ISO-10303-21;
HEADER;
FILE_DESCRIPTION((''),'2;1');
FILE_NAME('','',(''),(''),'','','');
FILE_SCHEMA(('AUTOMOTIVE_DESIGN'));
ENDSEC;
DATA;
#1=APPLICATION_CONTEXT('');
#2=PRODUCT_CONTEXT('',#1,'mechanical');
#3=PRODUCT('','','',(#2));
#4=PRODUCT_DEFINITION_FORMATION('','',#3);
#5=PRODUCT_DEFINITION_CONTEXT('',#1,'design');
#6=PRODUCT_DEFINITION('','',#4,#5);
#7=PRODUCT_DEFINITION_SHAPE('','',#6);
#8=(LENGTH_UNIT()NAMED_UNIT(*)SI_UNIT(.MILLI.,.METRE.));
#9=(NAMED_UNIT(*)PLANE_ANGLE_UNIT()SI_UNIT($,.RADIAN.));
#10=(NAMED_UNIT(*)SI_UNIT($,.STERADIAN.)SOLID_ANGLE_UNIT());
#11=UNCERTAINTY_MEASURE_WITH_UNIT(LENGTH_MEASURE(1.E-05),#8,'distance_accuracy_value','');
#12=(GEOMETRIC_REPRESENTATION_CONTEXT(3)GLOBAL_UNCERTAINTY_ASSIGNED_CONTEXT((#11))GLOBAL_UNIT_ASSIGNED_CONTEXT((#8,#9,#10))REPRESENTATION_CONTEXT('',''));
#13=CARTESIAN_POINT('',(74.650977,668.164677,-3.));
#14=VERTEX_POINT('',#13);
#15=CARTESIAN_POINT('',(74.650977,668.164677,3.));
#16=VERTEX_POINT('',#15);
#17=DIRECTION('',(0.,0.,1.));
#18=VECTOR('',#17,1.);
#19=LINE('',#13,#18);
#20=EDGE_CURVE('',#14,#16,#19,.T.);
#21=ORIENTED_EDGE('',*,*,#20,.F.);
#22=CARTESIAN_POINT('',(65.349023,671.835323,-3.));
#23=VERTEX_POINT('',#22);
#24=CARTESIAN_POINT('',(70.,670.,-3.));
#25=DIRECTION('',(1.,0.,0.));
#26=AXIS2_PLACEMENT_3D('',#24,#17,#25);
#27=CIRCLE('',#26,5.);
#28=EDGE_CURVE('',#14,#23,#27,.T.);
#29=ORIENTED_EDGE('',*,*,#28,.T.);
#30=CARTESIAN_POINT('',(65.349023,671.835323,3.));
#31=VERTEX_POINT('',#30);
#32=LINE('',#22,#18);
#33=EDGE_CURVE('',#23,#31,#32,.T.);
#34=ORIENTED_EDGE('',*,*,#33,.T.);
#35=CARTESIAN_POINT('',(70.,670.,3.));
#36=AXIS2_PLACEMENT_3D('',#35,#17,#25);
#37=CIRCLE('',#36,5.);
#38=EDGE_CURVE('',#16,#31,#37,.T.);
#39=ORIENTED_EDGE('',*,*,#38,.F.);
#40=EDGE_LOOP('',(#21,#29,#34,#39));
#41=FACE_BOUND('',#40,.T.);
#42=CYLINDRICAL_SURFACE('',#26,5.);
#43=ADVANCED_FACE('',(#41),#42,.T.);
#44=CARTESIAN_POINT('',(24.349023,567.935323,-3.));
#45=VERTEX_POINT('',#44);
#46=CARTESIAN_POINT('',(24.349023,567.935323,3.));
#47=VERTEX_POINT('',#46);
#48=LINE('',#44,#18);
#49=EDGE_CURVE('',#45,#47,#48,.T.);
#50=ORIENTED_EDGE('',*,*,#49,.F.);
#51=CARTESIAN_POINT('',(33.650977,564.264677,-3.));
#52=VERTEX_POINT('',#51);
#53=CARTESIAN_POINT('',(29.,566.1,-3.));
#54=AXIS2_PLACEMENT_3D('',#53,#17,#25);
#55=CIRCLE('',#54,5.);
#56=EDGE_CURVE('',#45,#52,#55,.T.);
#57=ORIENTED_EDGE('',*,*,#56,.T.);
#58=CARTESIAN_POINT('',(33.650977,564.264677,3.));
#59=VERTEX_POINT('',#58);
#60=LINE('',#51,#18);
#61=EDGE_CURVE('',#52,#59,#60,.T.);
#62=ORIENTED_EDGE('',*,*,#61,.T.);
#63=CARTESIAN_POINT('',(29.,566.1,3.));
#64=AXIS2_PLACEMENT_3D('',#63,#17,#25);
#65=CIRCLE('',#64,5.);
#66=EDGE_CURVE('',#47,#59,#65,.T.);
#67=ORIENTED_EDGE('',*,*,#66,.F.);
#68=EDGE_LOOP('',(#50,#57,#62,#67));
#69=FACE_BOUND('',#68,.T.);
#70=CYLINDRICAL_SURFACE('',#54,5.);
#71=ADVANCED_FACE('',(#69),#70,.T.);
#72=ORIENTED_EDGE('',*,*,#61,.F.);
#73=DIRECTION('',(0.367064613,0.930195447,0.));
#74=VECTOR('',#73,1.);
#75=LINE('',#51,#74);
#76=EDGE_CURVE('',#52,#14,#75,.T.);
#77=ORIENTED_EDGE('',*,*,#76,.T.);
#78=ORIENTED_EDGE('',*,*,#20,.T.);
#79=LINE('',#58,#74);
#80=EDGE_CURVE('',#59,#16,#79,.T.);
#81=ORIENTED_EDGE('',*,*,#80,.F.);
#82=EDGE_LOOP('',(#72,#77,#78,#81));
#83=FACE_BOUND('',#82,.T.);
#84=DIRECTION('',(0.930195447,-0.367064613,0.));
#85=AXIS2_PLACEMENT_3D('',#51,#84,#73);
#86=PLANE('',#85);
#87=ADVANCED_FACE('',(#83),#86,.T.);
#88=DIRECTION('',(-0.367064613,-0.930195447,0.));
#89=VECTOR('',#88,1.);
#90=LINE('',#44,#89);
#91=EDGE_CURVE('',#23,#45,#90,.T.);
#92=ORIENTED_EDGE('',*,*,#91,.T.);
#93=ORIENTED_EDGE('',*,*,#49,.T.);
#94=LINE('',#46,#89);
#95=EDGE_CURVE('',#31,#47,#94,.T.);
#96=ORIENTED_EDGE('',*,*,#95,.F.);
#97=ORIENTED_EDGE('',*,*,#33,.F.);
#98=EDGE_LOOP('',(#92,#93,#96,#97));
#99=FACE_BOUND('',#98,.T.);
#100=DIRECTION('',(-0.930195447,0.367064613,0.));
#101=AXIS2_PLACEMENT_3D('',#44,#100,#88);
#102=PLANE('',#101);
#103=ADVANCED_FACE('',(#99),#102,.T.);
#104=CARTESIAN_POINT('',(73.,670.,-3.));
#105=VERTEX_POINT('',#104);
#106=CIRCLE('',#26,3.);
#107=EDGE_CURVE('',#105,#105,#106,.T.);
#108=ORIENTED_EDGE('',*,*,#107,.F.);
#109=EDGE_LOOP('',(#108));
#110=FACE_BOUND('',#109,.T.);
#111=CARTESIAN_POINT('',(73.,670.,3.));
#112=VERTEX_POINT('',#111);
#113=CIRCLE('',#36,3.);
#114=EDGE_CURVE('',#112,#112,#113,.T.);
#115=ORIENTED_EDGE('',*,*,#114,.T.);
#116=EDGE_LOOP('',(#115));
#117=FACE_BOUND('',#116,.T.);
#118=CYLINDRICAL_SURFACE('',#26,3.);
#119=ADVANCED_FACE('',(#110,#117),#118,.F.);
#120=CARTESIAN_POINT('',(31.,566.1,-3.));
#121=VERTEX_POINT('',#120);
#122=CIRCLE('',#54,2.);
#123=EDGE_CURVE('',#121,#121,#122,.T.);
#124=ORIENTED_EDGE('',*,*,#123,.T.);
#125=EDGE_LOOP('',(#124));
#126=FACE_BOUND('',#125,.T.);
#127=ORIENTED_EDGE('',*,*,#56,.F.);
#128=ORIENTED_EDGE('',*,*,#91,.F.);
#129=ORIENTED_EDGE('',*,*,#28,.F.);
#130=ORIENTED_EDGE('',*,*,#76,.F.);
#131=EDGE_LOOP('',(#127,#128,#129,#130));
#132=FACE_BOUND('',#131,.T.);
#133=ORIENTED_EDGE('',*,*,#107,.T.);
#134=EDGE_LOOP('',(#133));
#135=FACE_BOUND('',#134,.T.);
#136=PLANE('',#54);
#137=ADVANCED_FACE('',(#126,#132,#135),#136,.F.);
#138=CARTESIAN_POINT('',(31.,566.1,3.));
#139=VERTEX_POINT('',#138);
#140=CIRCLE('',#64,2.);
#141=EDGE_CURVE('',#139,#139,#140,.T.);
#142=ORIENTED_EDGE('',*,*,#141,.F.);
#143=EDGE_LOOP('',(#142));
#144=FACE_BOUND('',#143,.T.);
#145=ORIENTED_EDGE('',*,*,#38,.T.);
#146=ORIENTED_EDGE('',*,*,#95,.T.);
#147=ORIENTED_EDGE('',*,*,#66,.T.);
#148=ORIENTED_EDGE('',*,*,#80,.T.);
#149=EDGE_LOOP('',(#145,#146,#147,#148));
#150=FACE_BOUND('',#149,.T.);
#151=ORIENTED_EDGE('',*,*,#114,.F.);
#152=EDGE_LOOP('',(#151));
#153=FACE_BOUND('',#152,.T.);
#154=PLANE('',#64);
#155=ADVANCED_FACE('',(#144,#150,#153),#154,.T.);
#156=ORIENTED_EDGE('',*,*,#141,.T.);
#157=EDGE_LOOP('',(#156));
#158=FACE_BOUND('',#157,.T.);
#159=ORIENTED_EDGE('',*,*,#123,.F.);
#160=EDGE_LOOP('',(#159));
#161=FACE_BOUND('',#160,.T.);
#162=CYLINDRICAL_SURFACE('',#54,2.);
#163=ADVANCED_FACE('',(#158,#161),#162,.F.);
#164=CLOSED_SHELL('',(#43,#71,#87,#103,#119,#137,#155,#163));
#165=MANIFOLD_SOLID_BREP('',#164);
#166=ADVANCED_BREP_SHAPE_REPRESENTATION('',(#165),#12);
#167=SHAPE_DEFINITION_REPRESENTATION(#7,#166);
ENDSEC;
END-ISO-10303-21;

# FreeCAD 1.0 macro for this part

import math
import FreeCAD as App
import Part
import Sketcher

V = App.Vector

doc = App.newDocument("Part")
body = doc.addObject("PartDesign::Body", "Body")

# Sketch on XY plane
sketch1 = body.newObject("Sketcher::SketchObject", "Sketch")
sketch1.AttachmentSupport = (doc.getObject("XY_Plane"), [""])
sketch1.MapMode = "FlatFace"
sketch1.addGeometry([
    Part.LineSegment(V(65.3, 671.8, 0), V(24.3, 567.9, 0)),  # 0
    Part.ArcOfCircle(Part.Circle(V(29, 566.1, 0), V(0, 0, 1), 5), math.radians(158), math.radians(338)),  # 1
    Part.LineSegment(V(33.7, 564.3, 0), V(74.7, 668.2, 0)),  # 2
    Part.ArcOfCircle(Part.Circle(V(70, 670, 0), V(0, 0, 1), 5), math.radians(-22), math.radians(158)),  # 3
    Part.Circle(V(29, 566.1, 0), V(0, 0, 1), 2),  # 4
    Part.Circle(V(70, 670, 0), V(0, 0, 1), 3),  # 5
], False)
sketch1.addConstraint([
    Sketcher.Constraint("Tangent", 0, 2, 1, 1),
    Sketcher.Constraint("Tangent", 1, 2, 2, 1),
    Sketcher.Constraint("Tangent", 2, 2, 3, 1),
    Sketcher.Constraint("Tangent", 3, 2, 0, 1),
    Sketcher.Constraint("Coincident", 4, 3, 1, 3),
    Sketcher.Constraint("Coincident", 5, 3, 3, 3),
    Sketcher.Constraint("Equal", 1, 3),
    Sketcher.Constraint("Diameter", 4, 4.0),
    Sketcher.Constraint("Diameter", 5, 6.0),
    Sketcher.Constraint("Radius", 1, 5.0),
    Sketcher.Constraint("DistanceX", -1, 1, 1, 3, 29.0),
    Sketcher.Constraint("DistanceX", -1, 1, 3, 3, 70.0),
    Sketcher.Constraint("DistanceY", -1, 1, 3, 3, 670.0),
    Sketcher.Constraint("DistanceY", -1, 1, 1, 3, 566.1),
])
pad1 = body.newObject("PartDesign::Pad", "Pad")
pad1.Profile = sketch1
pad1.Type = "TwoLengths"
pad1.Length = 3
pad1.Length2 = 3

doc.recompute()
